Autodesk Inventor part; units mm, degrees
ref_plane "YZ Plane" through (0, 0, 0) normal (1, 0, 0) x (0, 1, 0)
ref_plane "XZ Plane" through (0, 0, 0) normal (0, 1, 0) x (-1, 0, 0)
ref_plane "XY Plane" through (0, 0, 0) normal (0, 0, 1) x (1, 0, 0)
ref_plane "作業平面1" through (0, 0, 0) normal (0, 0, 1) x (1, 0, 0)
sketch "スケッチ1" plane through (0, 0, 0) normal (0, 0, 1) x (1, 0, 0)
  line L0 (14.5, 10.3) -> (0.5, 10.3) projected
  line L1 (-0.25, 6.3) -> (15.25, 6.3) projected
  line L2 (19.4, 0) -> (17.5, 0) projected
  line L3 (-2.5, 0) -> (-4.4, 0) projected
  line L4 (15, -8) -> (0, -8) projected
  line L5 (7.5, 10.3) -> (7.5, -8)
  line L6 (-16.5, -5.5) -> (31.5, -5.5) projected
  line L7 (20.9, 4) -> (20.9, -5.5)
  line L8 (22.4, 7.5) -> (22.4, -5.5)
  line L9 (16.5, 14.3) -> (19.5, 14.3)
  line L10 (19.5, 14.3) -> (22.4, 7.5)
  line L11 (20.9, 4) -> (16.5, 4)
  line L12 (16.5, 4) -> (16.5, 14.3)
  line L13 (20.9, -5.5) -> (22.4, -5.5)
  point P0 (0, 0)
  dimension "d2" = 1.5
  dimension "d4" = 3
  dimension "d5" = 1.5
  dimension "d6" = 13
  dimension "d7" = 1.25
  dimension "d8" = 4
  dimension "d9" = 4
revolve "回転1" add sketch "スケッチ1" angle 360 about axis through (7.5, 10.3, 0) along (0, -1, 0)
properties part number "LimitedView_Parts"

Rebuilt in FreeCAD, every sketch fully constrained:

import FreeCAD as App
import Part
import Sketcher

V = App.Vector
Q = App.Units.Quantity


def add_polygon(sketch, points):
    """Adds a closed chain of lines whose ends are joined by coincident constraints."""
    first, n = sketch.GeometryCount, len(points)
    for a, b in zip(points, points[1:] + points[:1]):
        sketch.addGeometry(Part.LineSegment(App.Vector(*a, 0), App.Vector(*b, 0)), False)
    for i in range(n):
        sketch.addConstraint(Sketcher.Constraint("Coincident", first + i, 2, first + (i + 1) % n, 1))

doc = App.newDocument("Part")
params = doc.addObject("Spreadsheet::Sheet", "Params")
for row, (alias, value) in enumerate([
    ("sketch1_width", "3 mm"),
    ("sketch1_height", "13 mm"),
    ("sketch1_width2", "1.5 mm"),
    ("sketch1_width3", "4.4 mm"),
    ("sketch1_height2", "9.5 mm"),
    ("revolution_angle", "360 deg"),
], start=1):
    params.set(f"A{row}", alias)
    params.set(f"B{row}", "=" + value)
    params.setAlias(f"B{row}", alias)

body = doc.addObject("PartDesign::Body", "Body")

sketch1 = body.newObject("Sketcher::SketchObject", "Sketch")
sketch1.AttachmentSupport = (doc.getObject("XY_Plane"), [""])
sketch1.MapMode = "FlatFace"
add_polygon(sketch1, [(20.9, 4), (20.9, -5.5), (22.4, -5.5), (22.4, 7.5), (19.5, 14.3), (16.5, 14.3), (16.5, 4)])
sketch1.addGeometry(Part.LineSegment(V(7.5, 14.3, 0), V(7.5, -5.5, 0)), True)
sketch1.addConstraint([
    Sketcher.Constraint("Vertical", 0),
    Sketcher.Constraint("Horizontal", 1),
    Sketcher.Constraint("Vertical", 2),
    Sketcher.Constraint("Horizontal", 4),
    Sketcher.Constraint("Vertical", 5),
    Sketcher.Constraint("Horizontal", 6),
    Sketcher.Constraint("Vertical", 7),
    Sketcher.Constraint("Horizontal", 4, 2, 7, 1),
    Sketcher.Constraint("Horizontal", 1, 2, 7, 2),
    Sketcher.Constraint("DistanceX", 4, 2, 4, 1, Q("3 mm")),
    Sketcher.Constraint("DistanceY", 2, 1, 2, 2, Q("13 mm")),
    Sketcher.Constraint("DistanceX", 1, 1, 1, 2, Q("1.5 mm")),
    Sketcher.Constraint("DistanceY", -1, 1, 5, 2, Q("4 mm")),
    Sketcher.Constraint("DistanceX", 6, 1, 6, 2, Q("4.4 mm")),
    Sketcher.Constraint("DistanceY", 0, 2, 0, 1, Q("9.5 mm")),
    Sketcher.Constraint("DistanceY", 5, 2, 5, 1, Q("10.3 mm")),
    Sketcher.Constraint("DistanceX", 7, 1, 4, 2, Q("9 mm")),
    Sketcher.Constraint("DistanceX", -1, 1, 0, 2, Q("20.9 mm")),
])
sketch1.setExpression("Constraints[16]", "Params.sketch1_width")
sketch1.setExpression("Constraints[17]", "Params.sketch1_height")
sketch1.setExpression("Constraints[18]", "Params.sketch1_width2")
sketch1.setExpression("Constraints[20]", "Params.sketch1_width3")
sketch1.setExpression("Constraints[21]", "Params.sketch1_height2")
revolution = body.newObject("PartDesign::Revolution", "Revolution")
revolution.Profile = sketch1
revolution.ReferenceAxis = (sketch1, ["Axis0"])
revolution.setExpression("Angle", "Params.revolution_angle")

doc.recompute()
